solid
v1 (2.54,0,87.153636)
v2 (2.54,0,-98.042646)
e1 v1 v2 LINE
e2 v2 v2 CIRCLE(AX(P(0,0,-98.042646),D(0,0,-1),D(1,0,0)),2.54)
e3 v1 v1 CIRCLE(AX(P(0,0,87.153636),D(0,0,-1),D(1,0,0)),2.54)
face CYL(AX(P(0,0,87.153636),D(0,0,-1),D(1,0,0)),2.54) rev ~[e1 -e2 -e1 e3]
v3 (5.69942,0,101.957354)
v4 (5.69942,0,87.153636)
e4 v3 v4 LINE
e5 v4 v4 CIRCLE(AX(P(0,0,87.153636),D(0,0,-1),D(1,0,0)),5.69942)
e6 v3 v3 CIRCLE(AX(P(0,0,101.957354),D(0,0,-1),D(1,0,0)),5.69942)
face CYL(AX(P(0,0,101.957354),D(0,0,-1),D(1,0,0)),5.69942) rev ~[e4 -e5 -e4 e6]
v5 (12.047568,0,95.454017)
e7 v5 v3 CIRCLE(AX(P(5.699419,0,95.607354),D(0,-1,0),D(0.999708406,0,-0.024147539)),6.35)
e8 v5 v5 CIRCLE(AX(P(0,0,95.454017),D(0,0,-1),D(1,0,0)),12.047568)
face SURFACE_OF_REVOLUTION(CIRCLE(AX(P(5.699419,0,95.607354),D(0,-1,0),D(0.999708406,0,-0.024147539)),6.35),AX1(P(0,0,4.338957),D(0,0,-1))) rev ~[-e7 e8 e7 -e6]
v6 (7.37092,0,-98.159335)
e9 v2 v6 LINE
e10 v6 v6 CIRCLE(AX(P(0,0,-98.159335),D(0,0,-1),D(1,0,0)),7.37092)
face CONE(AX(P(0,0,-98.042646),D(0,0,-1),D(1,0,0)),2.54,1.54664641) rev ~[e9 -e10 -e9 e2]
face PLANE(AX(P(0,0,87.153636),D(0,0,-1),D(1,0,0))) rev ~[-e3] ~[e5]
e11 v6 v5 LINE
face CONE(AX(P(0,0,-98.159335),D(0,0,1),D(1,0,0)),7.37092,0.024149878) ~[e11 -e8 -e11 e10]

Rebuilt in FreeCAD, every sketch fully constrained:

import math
import FreeCAD as App
import Part
import Sketcher

V = App.Vector
Q = App.Units.Quantity

doc = App.newDocument("Part")
body = doc.addObject("PartDesign::Body", "Body")

sketch1 = doc.addObject("Sketcher::SketchObject", "Sketch")
body.addObject(sketch1)
sketch1.AttachmentSupport = (doc.XZ_Plane, [""])
sketch1.MapMode = "FlatFace"
sketch1.addGeometry(Part.LineSegment(V(7.4, -98.2, 0), V(12, 95.5, 0)), False)
sketch1.addGeometry(Part.ArcOfCircle(Part.Circle(V(5.7, 95.6, 0), V(0, 0, 1), 6.4), math.radians(-1), math.radians(90)), False)
sketch1.addGeometry(Part.LineSegment(V(5.7, 102, 0), V(5.7, 87.2, 0)), False)
sketch1.addGeometry(Part.LineSegment(V(5.7, 87.2, 0), V(2.5, 87.2, 0)), False)
sketch1.addGeometry(Part.LineSegment(V(2.5, 87.2, 0), V(2.5, -98, 0)), False)
sketch1.addGeometry(Part.LineSegment(V(2.5, -98, 0), V(7.4, -98.2, 0)), False)
sketch1.addConstraint(Sketcher.Constraint("Tangent", 0, 2, 1, 1))
sketch1.addConstraint(Sketcher.Constraint("Coincident", 1, 2, 2, 1))
sketch1.addConstraint(Sketcher.Constraint("Coincident", 2, 2, 3, 1))
sketch1.addConstraint(Sketcher.Constraint("Coincident", 3, 2, 4, 1))
sketch1.addConstraint(Sketcher.Constraint("Coincident", 4, 2, 5, 1))
sketch1.addConstraint(Sketcher.Constraint("Coincident", 5, 2, 0, 1))
sketch1.addConstraint(Sketcher.Constraint("Vertical", 2))
sketch1.addConstraint(Sketcher.Constraint("Horizontal", 3))
sketch1.addConstraint(Sketcher.Constraint("Vertical", 4))
sketch1.addConstraint(Sketcher.Constraint("Perpendicular", 0, 5))
sketch1.addConstraint(Sketcher.Constraint("Radius", 1, Q("0.25 in")))
sketch1.addConstraint(Sketcher.Constraint("DistanceX", -1, 1, 3, 2, Q("0.1 in")))
sketch1.addConstraint(Sketcher.Constraint("DistanceX", 3, 2, 3, 1, 3.15942))
sketch1.addConstraint(Sketcher.Constraint("DistanceY", 4, 2, 4, 1, 185.196282))
sketch1.addConstraint(Sketcher.Constraint("DistanceY", 4, 2, 1, 3, 193.65))
sketch1.addConstraint(Sketcher.Constraint("DistanceX", 2, 2, 5, 2, 1.6715))
sketch1.addConstraint(Sketcher.Constraint("DistanceX", 1, 3, 5, 2, 1.671501))
sketch1.addConstraint(Sketcher.Constraint("DistanceY", -1, 1, 1, 3, 95.607354))
revolution = doc.addObject("PartDesign::Revolution", "Revolution")
body.addObject(revolution)
revolution.Profile = sketch1
revolution.ReferenceAxis = (sketch1, ["V_Axis"])
revolution.Angle = 360

doc.recompute()
